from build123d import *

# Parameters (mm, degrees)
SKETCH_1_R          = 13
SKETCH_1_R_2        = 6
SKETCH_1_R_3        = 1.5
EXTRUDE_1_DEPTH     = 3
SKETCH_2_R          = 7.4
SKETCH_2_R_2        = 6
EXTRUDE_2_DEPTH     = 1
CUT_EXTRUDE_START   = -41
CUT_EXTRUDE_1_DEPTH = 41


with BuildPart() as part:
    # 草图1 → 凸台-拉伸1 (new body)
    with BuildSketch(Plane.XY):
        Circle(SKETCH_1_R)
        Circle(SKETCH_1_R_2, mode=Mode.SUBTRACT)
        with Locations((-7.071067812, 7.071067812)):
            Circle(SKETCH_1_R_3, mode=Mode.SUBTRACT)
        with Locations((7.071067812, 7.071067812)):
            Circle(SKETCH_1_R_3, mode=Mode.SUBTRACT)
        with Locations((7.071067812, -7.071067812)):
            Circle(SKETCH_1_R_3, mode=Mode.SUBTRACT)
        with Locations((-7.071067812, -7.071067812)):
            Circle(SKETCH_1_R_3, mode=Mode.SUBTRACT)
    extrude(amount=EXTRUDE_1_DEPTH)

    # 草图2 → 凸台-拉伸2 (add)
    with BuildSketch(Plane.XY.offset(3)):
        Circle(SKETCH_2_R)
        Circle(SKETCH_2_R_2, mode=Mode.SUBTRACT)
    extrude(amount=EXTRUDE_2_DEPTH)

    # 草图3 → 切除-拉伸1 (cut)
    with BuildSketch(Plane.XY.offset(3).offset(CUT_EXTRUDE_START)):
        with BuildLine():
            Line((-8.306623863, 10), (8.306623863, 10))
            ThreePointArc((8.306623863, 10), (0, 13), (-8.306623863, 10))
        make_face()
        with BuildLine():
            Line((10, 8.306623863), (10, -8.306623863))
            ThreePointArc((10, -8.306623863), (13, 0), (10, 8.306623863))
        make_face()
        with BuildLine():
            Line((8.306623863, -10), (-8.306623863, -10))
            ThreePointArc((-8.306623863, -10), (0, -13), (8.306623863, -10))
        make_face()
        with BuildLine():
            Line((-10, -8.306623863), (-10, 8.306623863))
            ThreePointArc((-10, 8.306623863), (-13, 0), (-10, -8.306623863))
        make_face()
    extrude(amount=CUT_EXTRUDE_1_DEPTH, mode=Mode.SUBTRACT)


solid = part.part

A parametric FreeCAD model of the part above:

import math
import FreeCAD as App
import Part
import Sketcher

V = App.Vector

doc = App.newDocument("Part")
body = doc.addObject("PartDesign::Body", "Body")

# Sketch on XY plane
sketch1 = body.newObject("Sketcher::SketchObject", "Sketch")
sketch1.AttachmentSupport = (doc.getObject("XY_Plane"), [""])
sketch1.MapMode = "FlatFace"
sketch1.addGeometry(Part.Circle(V(0, 0, 0), V(0, 0, 1), 13), False)
sketch1.addGeometry(Part.Circle(V(-7.071068, -7.071068, 0), V(0, 0, 1), 1.5), False)
sketch1.addGeometry(Part.Circle(V(7.071068, -7.071068, 0), V(0, 0, 1), 1.5), False)
sketch1.addGeometry(Part.Circle(V(-7.071068, 7.071068, 0), V(0, 0, 1), 1.5), False)
sketch1.addGeometry(Part.Circle(V(0, 0, 0), V(0, 0, 1), 6), False)
sketch1.addGeometry(Part.Circle(V(7.071068, 7.071068, 0), V(0, 0, 1), 1.5), False)
sketch1.addConstraint(Sketcher.Constraint("Coincident", 0, 3, -1, 1))
sketch1.addConstraint(Sketcher.Constraint("Coincident", 4, 3, -1, 1))
sketch1.addConstraint(Sketcher.Constraint("Equal", 1, 2))
sketch1.addConstraint(Sketcher.Constraint("Equal", 2, 3))
sketch1.addConstraint(Sketcher.Constraint("Equal", 3, 5))
sketch1.addConstraint(Sketcher.Constraint("Symmetric", 2, 3, 3, 3, -1, 1))
sketch1.addConstraint(Sketcher.Constraint("Symmetric", 1, 3, 5, 3, -1, 1))
sketch1.addConstraint(Sketcher.Constraint("Symmetric", 1, 3, 2, 3, -2))
sketch1.addConstraint(Sketcher.Constraint("Diameter", 0, 26.0))
sketch1.addConstraint(Sketcher.Constraint("Diameter", 1, 3.0))
sketch1.addConstraint(Sketcher.Constraint("Diameter", 4, 12.0))
sketch1.addConstraint(Sketcher.Constraint("DistanceX", 1, 3, -1, 1, 7.071068))
sketch1.addConstraint(Sketcher.Constraint("DistanceY", 1, 3, -1, 1, 7.071068))
pad1 = body.newObject("PartDesign::Pad", "Pad")
pad1.Profile = sketch1
pad1.Length = 3

# Sketch on XY plane
sketch2 = body.newObject("Sketcher::SketchObject", "Sketch001")
sketch2.AttachmentSupport = (doc.getObject("XY_Plane"), [""])
sketch2.MapMode = "FlatFace"
sketch2.AttachmentOffset = App.Placement(V(0, 0, 3), App.Rotation())
sketch2.addGeometry(Part.Circle(V(0, 0, 0), V(0, 0, 1), 7.4), False)
sketch2.addGeometry(Part.Circle(V(0, 0, 0), V(0, 0, 1), 6), False)
sketch2.addConstraint(Sketcher.Constraint("Coincident", 0, 3, -1, 1))
sketch2.addConstraint(Sketcher.Constraint("Coincident", 1, 3, -1, 1))
sketch2.addConstraint(Sketcher.Constraint("Diameter", 1, 12.0))
sketch2.addConstraint(Sketcher.Constraint("Diameter", 0, 14.8))
pad2 = body.newObject("PartDesign::Pad", "Pad001")
pad2.Profile = sketch2
pad2.Length = 1

# Sketch on XY plane
sketch3 = body.newObject("Sketcher::SketchObject", "Sketch002")
sketch3.AttachmentSupport = (doc.getObject("XY_Plane"), [""])
sketch3.MapMode = "FlatFace"
sketch3.AttachmentOffset = App.Placement(V(0, 0, -38), App.Rotation())
sketch3.addGeometry(Part.LineSegment(V(-8.306624, 10, 0), V(8.306624, 10, 0)), False)
sketch3.addGeometry(Part.ArcOfCircle(Part.Circle(V(0, 0, 0), V(0, 0, 1), 13), math.radians(50.284863), math.radians(129.715137)), False)
sketch3.addGeometry(Part.LineSegment(V(10, 8.306624, 0), V(10, -8.306624, 0)), False)
sketch3.addGeometry(Part.ArcOfCircle(Part.Circle(V(0, 0, 0), V(0, 0, 1), 13), math.radians(-39.715137), math.radians(39.715137)), False)
sketch3.addGeometry(Part.LineSegment(V(8.306624, -10, 0), V(-8.306624, -10, 0)), False)
sketch3.addGeometry(Part.ArcOfCircle(Part.Circle(V(0, 0, 0), V(0, 0, 1), 13), math.radians(-129.715137), math.radians(-50.284863)), False)
sketch3.addGeometry(Part.LineSegment(V(-10, -8.306624, 0), V(-10, 8.306624, 0)), False)
sketch3.addGeometry(Part.ArcOfCircle(Part.Circle(V(0, 0, 0), V(0, 0, 1), 13), math.radians(140.284863), math.radians(219.715137)), False)
sketch3.addConstraint(Sketcher.Constraint("Coincident", 0, 1, 1, 2))
sketch3.addConstraint(Sketcher.Constraint("Coincident", 1, 1, 0, 2))
sketch3.addConstraint(Sketcher.Constraint("Coincident", 2, 1, 3, 2))
sketch3.addConstraint(Sketcher.Constraint("Coincident", 3, 1, 2, 2))
sketch3.addConstraint(Sketcher.Constraint("Coincident", 4, 1, 5, 2))
sketch3.addConstraint(Sketcher.Constraint("Coincident", 5, 1, 4, 2))
sketch3.addConstraint(Sketcher.Constraint("Coincident", 6, 1, 7, 2))
sketch3.addConstraint(Sketcher.Constraint("Coincident", 7, 1, 6, 2))
sketch3.addConstraint(Sketcher.Constraint("Horizontal", 0))
sketch3.addConstraint(Sketcher.Constraint("Vertical", 2))
sketch3.addConstraint(Sketcher.Constraint("Horizontal", 4))
sketch3.addConstraint(Sketcher.Constraint("Vertical", 6))
sketch3.addConstraint(Sketcher.Constraint("Coincident", 1, 3, -1, 1))
sketch3.addConstraint(Sketcher.Constraint("Coincident", 3, 3, -1, 1))
sketch3.addConstraint(Sketcher.Constraint("Coincident", 5, 3, -1, 1))
sketch3.addConstraint(Sketcher.Constraint("Coincident", 7, 3, -1, 1))
sketch3.addConstraint(Sketcher.Constraint("Equal", 1, 3))
sketch3.addConstraint(Sketcher.Constraint("Equal", 3, 5))
sketch3.addConstraint(Sketcher.Constraint("Equal", 5, 7))
sketch3.addConstraint(Sketcher.Constraint("Horizontal", 3, 1, 6, 1))
sketch3.addConstraint(Sketcher.Constraint("Vertical", 1, 1, 4, 1))
sketch3.addConstraint(Sketcher.Constraint("Equal", 4, 2))
sketch3.addConstraint(Sketcher.Constraint("Radius", 1, 13.0))
sketch3.addConstraint(Sketcher.Constraint("DistanceY", -1, 1, 0, 1, 10.0))
pocket1 = body.newObject("PartDesign::Pocket", "Pocket")
pocket1.Profile = sketch3
pocket1.Length = 41
pocket1.Reversed = True

doc.recompute()
